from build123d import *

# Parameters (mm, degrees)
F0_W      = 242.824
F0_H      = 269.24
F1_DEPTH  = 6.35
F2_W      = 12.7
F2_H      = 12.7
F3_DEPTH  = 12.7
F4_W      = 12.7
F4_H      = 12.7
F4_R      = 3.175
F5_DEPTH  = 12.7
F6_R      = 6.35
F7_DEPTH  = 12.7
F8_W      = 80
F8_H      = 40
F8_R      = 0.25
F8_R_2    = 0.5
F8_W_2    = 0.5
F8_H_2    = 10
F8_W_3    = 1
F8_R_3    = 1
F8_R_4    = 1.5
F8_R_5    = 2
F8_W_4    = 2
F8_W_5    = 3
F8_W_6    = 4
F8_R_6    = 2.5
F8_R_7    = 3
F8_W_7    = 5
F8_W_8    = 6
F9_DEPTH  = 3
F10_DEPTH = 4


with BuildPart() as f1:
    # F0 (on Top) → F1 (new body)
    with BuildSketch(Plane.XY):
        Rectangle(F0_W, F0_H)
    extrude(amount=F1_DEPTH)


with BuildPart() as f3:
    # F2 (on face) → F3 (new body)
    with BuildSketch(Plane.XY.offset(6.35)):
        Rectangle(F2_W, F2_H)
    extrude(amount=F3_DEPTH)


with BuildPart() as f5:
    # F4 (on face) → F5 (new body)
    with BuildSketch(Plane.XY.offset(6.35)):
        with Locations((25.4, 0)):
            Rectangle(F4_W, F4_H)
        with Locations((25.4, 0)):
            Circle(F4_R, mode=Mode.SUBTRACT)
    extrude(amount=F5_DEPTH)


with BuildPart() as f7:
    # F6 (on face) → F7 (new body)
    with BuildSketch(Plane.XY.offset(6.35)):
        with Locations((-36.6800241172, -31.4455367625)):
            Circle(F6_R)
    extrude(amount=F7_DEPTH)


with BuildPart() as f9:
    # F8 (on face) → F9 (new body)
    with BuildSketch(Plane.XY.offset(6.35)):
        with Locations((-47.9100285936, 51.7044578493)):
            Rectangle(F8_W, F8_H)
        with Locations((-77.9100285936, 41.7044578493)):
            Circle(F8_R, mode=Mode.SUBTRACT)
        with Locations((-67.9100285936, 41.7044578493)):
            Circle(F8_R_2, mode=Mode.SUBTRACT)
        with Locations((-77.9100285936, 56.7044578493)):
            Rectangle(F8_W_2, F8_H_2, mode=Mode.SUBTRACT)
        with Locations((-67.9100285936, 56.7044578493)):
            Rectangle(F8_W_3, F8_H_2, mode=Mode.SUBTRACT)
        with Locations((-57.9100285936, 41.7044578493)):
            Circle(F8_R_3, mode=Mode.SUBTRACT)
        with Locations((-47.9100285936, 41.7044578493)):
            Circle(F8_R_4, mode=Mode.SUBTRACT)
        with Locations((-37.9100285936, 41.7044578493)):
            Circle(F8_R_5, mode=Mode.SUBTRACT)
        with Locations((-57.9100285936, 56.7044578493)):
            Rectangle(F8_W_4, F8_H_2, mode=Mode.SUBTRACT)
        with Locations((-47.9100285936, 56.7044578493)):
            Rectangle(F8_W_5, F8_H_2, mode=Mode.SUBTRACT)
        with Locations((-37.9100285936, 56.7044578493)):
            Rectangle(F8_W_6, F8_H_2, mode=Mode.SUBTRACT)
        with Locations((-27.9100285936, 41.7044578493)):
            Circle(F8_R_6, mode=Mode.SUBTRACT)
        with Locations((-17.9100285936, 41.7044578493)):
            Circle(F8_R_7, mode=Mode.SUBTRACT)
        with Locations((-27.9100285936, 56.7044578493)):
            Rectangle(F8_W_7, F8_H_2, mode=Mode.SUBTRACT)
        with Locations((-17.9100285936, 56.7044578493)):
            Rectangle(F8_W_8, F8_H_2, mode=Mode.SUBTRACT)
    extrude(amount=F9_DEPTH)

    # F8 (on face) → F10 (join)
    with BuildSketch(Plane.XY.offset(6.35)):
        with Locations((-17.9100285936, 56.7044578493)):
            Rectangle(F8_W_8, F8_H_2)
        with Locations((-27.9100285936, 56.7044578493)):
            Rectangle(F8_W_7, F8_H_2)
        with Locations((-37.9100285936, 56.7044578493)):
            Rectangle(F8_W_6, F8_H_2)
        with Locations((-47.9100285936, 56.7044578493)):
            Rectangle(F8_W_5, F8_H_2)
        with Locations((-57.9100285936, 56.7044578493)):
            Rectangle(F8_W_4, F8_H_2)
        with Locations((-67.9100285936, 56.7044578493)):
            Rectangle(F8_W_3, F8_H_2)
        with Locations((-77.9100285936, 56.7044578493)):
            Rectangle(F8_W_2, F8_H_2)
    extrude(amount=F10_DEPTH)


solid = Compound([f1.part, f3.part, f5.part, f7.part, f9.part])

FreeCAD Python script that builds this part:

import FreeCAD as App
import Part
import Sketcher

V = App.Vector

doc = App.newDocument("Part")
body = doc.addObject("PartDesign::Body", "Body")

sketch1 = doc.addObject("Sketcher::SketchObject", "Sketch")
body.addObject(sketch1)
sketch1.AttachmentSupport = (doc.XY_Plane, [""])
sketch1.MapMode = "FlatFace"
sketch1.addGeometry([
    Part.LineSegment(V(-121, 135, 0), V(-121, -135, 0)),
    Part.LineSegment(V(-121, -135, 0), V(121, -135, 0)),
    Part.LineSegment(V(121, -135, 0), V(121, 135, 0)),
    Part.LineSegment(V(121, 135, 0), V(-121, 135, 0)),
], False)
sketch1.addConstraint([
    Sketcher.Constraint("Coincident", 0, 2, 1, 1),
    Sketcher.Constraint("Coincident", 1, 2, 2, 1),
    Sketcher.Constraint("Coincident", 2, 2, 3, 1),
    Sketcher.Constraint("Coincident", 3, 2, 0, 1),
    Sketcher.Constraint("Vertical", 0),
    Sketcher.Constraint("Horizontal", 1),
    Sketcher.Constraint("Vertical", 2),
    Sketcher.Constraint("Horizontal", 3),
    Sketcher.Constraint("Symmetric", 0, 2, 2, 2, -1, 1),
    Sketcher.Constraint("DistanceY", 0, 2, 0, 1, 269.24),
    Sketcher.Constraint("DistanceX", 1, 1, 1, 2, 242.824),
])
pad1 = doc.addObject("PartDesign::Pad", "Pad")
body.addObject(pad1)
pad1.Profile = sketch1
pad1.Length = 6.35
body2 = doc.addObject("PartDesign::Body", "Body001")

sketch2 = doc.addObject("Sketcher::SketchObject", "Sketch001")
body2.addObject(sketch2)
sketch2.AttachmentSupport = (doc.getObject("XY_Plane001"), [""])
sketch2.MapMode = "FlatFace"
sketch2.AttachmentOffset = App.Placement(V(0, 0, 6.35), App.Rotation())
sketch2.addGeometry([
    Part.LineSegment(V(-6, 6, 0), V(-6, -6, 0)),
    Part.LineSegment(V(-6, -6, 0), V(6, -6, 0)),
    Part.LineSegment(V(6, -6, 0), V(6, 6, 0)),
    Part.LineSegment(V(6, 6, 0), V(-6, 6, 0)),
], False)
sketch2.addConstraint([
    Sketcher.Constraint("Coincident", 0, 2, 1, 1),
    Sketcher.Constraint("Coincident", 1, 2, 2, 1),
    Sketcher.Constraint("Coincident", 2, 2, 3, 1),
    Sketcher.Constraint("Coincident", 3, 2, 0, 1),
    Sketcher.Constraint("Vertical", 0),
    Sketcher.Constraint("Horizontal", 1),
    Sketcher.Constraint("Vertical", 2),
    Sketcher.Constraint("Horizontal", 3),
    Sketcher.Constraint("Symmetric", 0, 2, 2, 2, -1, 1),
    Sketcher.Constraint("Equal", 3, 0),
    Sketcher.Constraint("DistanceX", 1, 1, 1, 2, 12.7),
])
pad2 = doc.addObject("PartDesign::Pad", "Pad001")
body2.addObject(pad2)
pad2.Profile = sketch2
pad2.Length = 12.7
body3 = doc.addObject("PartDesign::Body", "Body002")

sketch3 = doc.addObject("Sketcher::SketchObject", "Sketch002")
body3.addObject(sketch3)
sketch3.AttachmentSupport = (doc.getObject("XY_Plane002"), [""])
sketch3.MapMode = "FlatFace"
sketch3.AttachmentOffset = App.Placement(V(0, 0, 6.35), App.Rotation())
sketch3.addGeometry([
    Part.LineSegment(V(19.1, 6.3, 0), V(19.1, -6.3, 0)),
    Part.LineSegment(V(19.1, -6.3, 0), V(31.8, -6.3, 0)),
    Part.LineSegment(V(31.8, -6.3, 0), V(31.8, 6.3, 0)),
    Part.LineSegment(V(31.8, 6.3, 0), V(19.1, 6.3, 0)),
    Part.Circle(V(25.4, 0, 0), V(0, 0, 1), 3.2),
], False)
sketch3.addConstraint([
    Sketcher.Constraint("Coincident", 0, 2, 1, 1),
    Sketcher.Constraint("Coincident", 1, 2, 2, 1),
    Sketcher.Constraint("Coincident", 2, 2, 3, 1),
    Sketcher.Constraint("Coincident", 3, 2, 0, 1),
    Sketcher.Constraint("Vertical", 0),
    Sketcher.Constraint("Horizontal", 1),
    Sketcher.Constraint("Vertical", 2),
    Sketcher.Constraint("Horizontal", 3),
    Sketcher.Constraint("PointOnObject", 4, 3, -1),
    Sketcher.Constraint("Equal", 3, 0),
    Sketcher.Constraint("Diameter", 4, 6.35),
    Sketcher.Constraint("DistanceX", 1, 1, 1, 2, 12.7),
    Sketcher.Constraint("DistanceX", -1, 1, 4, 3, 25.4),
    Sketcher.Constraint("DistanceX", -1, 1, 0, 2, 19.05),
    Sketcher.Constraint("DistanceY", 0, 2, -1, 1, 6.35),
])
pad3 = doc.addObject("PartDesign::Pad", "Pad002")
body3.addObject(pad3)
pad3.Profile = sketch3
pad3.Length = 12.7
body4 = doc.addObject("PartDesign::Body", "Body003")

sketch4 = doc.addObject("Sketcher::SketchObject", "Sketch003")
body4.addObject(sketch4)
sketch4.AttachmentSupport = (doc.getObject("XY_Plane003"), [""])
sketch4.MapMode = "FlatFace"
sketch4.AttachmentOffset = App.Placement(V(0, 0, 6.35), App.Rotation())
sketch4.addGeometry(Part.Circle(V(-37, -31, 0), V(0, 0, 1), 6), False)
sketch4.addConstraint([
    Sketcher.Constraint("Diameter", 0, 12.7),
    Sketcher.Constraint("DistanceX", 0, 3, -1, 1, 36.680024),
    Sketcher.Constraint("DistanceY", 0, 3, -1, 1, 31.445537),
])
pad4 = doc.addObject("PartDesign::Pad", "Pad003")
body4.addObject(pad4)
pad4.Profile = sketch4
pad4.Length = 12.7
body5 = doc.addObject("PartDesign::Body", "Body004")

sketch5 = doc.addObject("Sketcher::SketchObject", "Sketch004")
body5.addObject(sketch5)
sketch5.AttachmentSupport = (doc.getObject("XY_Plane004"), [""])
sketch5.MapMode = "FlatFace"
sketch5.AttachmentOffset = App.Placement(V(0, 0, 6.35), App.Rotation())
sketch5.addGeometry([
    Part.LineSegment(V(-87.91, 71.7, 0), V(-87.91, 31.7, 0)),
    Part.LineSegment(V(-87.91, 31.7, 0), V(-7.91, 31.7, 0)),
    Part.LineSegment(V(-7.91, 31.7, 0), V(-7.91, 71.7, 0)),
    Part.LineSegment(V(-7.91, 71.7, 0), V(-87.91, 71.7, 0)),
    Part.Circle(V(-77.91, 41.7, 0), V(0, 0, 1), 0.25),
    Part.Circle(V(-67.91, 41.7, 0), V(0, 0, 1), 0.5),
    Part.Circle(V(-57.91, 41.7, 0), V(0, 0, 1), 1),
    Part.Circle(V(-47.91, 41.7, 0), V(0, 0, 1), 1.5),
    Part.Circle(V(-37.91, 41.7, 0), V(0, 0, 1), 2),
    Part.Circle(V(-27.91, 41.7, 0), V(0, 0, 1), 2.5),
    Part.Circle(V(-17.91, 41.7, 0), V(0, 0, 1), 3),
    Part.LineSegment(V(-77.66, 51.7, 0), V(-78.16, 51.7, 0)),
    Part.LineSegment(V(-78.16, 51.7, 0), V(-78.16, 61.7, 0)),
    Part.LineSegment(V(-78.16, 61.7, 0), V(-77.66, 61.7, 0)),
    Part.LineSegment(V(-77.66, 61.7, 0), V(-77.66, 51.7, 0)),
    Part.LineSegment(V(-67.41, 51.7, 0), V(-68.41, 51.7, 0)),
    Part.LineSegment(V(-68.41, 51.7, 0), V(-68.41, 61.7, 0)),
    Part.LineSegment(V(-68.41, 61.7, 0), V(-67.41, 61.7, 0)),
    Part.LineSegment(V(-67.41, 61.7, 0), V(-67.41, 51.7, 0)),
    Part.LineSegment(V(-56.91, 51.7, 0), V(-58.91, 51.7, 0)),
    Part.LineSegment(V(-58.91, 51.7, 0), V(-58.91, 61.7, 0)),
    Part.LineSegment(V(-58.91, 61.7, 0), V(-56.91, 61.7, 0)),
    Part.LineSegment(V(-56.91, 61.7, 0), V(-56.91, 51.7, 0)),
    Part.LineSegment(V(-46.41, 51.7, 0), V(-49.41, 51.7, 0)),
    Part.LineSegment(V(-49.41, 51.7, 0), V(-49.41, 61.7, 0)),
    Part.LineSegment(V(-49.41, 61.7, 0), V(-46.41, 61.7, 0)),
    Part.LineSegment(V(-46.41, 61.7, 0), V(-46.41, 51.7, 0)),
    Part.LineSegment(V(-35.91, 51.7, 0), V(-39.91, 51.7, 0)),
    Part.LineSegment(V(-39.91, 51.7, 0), V(-39.91, 61.7, 0)),
    Part.LineSegment(V(-39.91, 61.7, 0), V(-35.91, 61.7, 0)),
    Part.LineSegment(V(-35.91, 61.7, 0), V(-35.91, 51.7, 0)),
    Part.LineSegment(V(-25.41, 51.7, 0), V(-30.41, 51.7, 0)),
    Part.LineSegment(V(-30.41, 51.7, 0), V(-30.41, 61.7, 0)),
    Part.LineSegment(V(-30.41, 61.7, 0), V(-25.41, 61.7, 0)),
    Part.LineSegment(V(-25.41, 61.7, 0), V(-25.41, 51.7, 0)),
    Part.LineSegment(V(-14.91, 51.7, 0), V(-20.91, 51.7, 0)),
    Part.LineSegment(V(-20.91, 51.7, 0), V(-20.91, 61.7, 0)),
    Part.LineSegment(V(-20.91, 61.7, 0), V(-14.91, 61.7, 0)),
    Part.LineSegment(V(-14.91, 61.7, 0), V(-14.91, 51.7, 0)),
], False)
sketch5.addConstraint([
    Sketcher.Constraint("Coincident", 0, 2, 1, 1),
    Sketcher.Constraint("Coincident", 1, 2, 2, 1),
    Sketcher.Constraint("Coincident", 2, 2, 3, 1),
    Sketcher.Constraint("Coincident", 3, 2, 0, 1),
    Sketcher.Constraint("Coincident", 11, 2, 12, 1),
    Sketcher.Constraint("Coincident", 12, 2, 13, 1),
    Sketcher.Constraint("Coincident", 13, 2, 14, 1),
    Sketcher.Constraint("Coincident", 14, 2, 11, 1),
    Sketcher.Constraint("Coincident", 15, 2, 16, 1),
    Sketcher.Constraint("Coincident", 16, 2, 17, 1),
    Sketcher.Constraint("Coincident", 17, 2, 18, 1),
    Sketcher.Constraint("Coincident", 18, 2, 15, 1),
    Sketcher.Constraint("Coincident", 19, 2, 20, 1),
    Sketcher.Constraint("Coincident", 20, 2, 21, 1),
    Sketcher.Constraint("Coincident", 21, 2, 22, 1),
    Sketcher.Constraint("Coincident", 22, 2, 19, 1),
    Sketcher.Constraint("Coincident", 23, 2, 24, 1),
    Sketcher.Constraint("Coincident", 24, 2, 25, 1),
    Sketcher.Constraint("Coincident", 25, 2, 26, 1),
    Sketcher.Constraint("Coincident", 26, 2, 23, 1),
    Sketcher.Constraint("Coincident", 27, 2, 28, 1),
    Sketcher.Constraint("Coincident", 28, 2, 29, 1),
    Sketcher.Constraint("Coincident", 29, 2, 30, 1),
    Sketcher.Constraint("Coincident", 30, 2, 27, 1),
    Sketcher.Constraint("Coincident", 31, 2, 32, 1),
    Sketcher.Constraint("Coincident", 32, 2, 33, 1),
    Sketcher.Constraint("Coincident", 33, 2, 34, 1),
    Sketcher.Constraint("Coincident", 34, 2, 31, 1),
    Sketcher.Constraint("Coincident", 35, 2, 36, 1),
    Sketcher.Constraint("Coincident", 36, 2, 37, 1),
    Sketcher.Constraint("Coincident", 37, 2, 38, 1),
    Sketcher.Constraint("Coincident", 38, 2, 35, 1),
    Sketcher.Constraint("Vertical", 0),
    Sketcher.Constraint("Horizontal", 1),
    Sketcher.Constraint("Vertical", 2),
    Sketcher.Constraint("Horizontal", 3),
    Sketcher.Constraint("Horizontal", 11),
    Sketcher.Constraint("Vertical", 12),
    Sketcher.Constraint("Horizontal", 13),
    Sketcher.Constraint("Vertical", 14),
    Sketcher.Constraint("Horizontal", 15),
    Sketcher.Constraint("Vertical", 16),
    Sketcher.Constraint("Horizontal", 17),
    Sketcher.Constraint("Vertical", 18),
    Sketcher.Constraint("Horizontal", 19),
    Sketcher.Constraint("Vertical", 20),
    Sketcher.Constraint("Horizontal", 21),
    Sketcher.Constraint("Vertical", 22),
    Sketcher.Constraint("Horizontal", 23),
    Sketcher.Constraint("Vertical", 24),
    Sketcher.Constraint("Horizontal", 25),
    Sketcher.Constraint("Vertical", 26),
    Sketcher.Constraint("Horizontal", 27),
    Sketcher.Constraint("Vertical", 28),
    Sketcher.Constraint("Horizontal", 29),
    Sketcher.Constraint("Vertical", 30),
    Sketcher.Constraint("Horizontal", 31),
    Sketcher.Constraint("Vertical", 32),
    Sketcher.Constraint("Horizontal", 33),
    Sketcher.Constraint("Vertical", 34),
    Sketcher.Constraint("Horizontal", 35),
    Sketcher.Constraint("Vertical", 36),
    Sketcher.Constraint("Horizontal", 37),
    Sketcher.Constraint("Vertical", 38),
    Sketcher.Constraint("Horizontal", 4, 3, 5, 3),
    Sketcher.Constraint("Horizontal", 5, 3, 6, 3),
    Sketcher.Constraint("Horizontal", 6, 3, 7, 3),
    Sketcher.Constraint("Horizontal", 7, 3, 8, 3),
    Sketcher.Constraint("Horizontal", 8, 3, 9, 3),
    Sketcher.Constraint("Horizontal", 9, 3, 10, 3),
    Sketcher.Constraint("Horizontal", 14, 2, 15, 2),
    Sketcher.Constraint("Horizontal", 13, 2, 16, 2),
    Sketcher.Constraint("Horizontal", 18, 2, 19, 2),
    Sketcher.Constraint("Horizontal", 17, 2, 20, 2),
    Sketcher.Constraint("Horizontal", 22, 2, 23, 2),
    Sketcher.Constraint("Horizontal", 21, 2, 24, 2),
    Sketcher.Constraint("Horizontal", 26, 2, 27, 2),
    Sketcher.Constraint("Horizontal", 25, 2, 28, 2),
    Sketcher.Constraint("Horizontal", 30, 2, 31, 2),
    Sketcher.Constraint("Horizontal", 29, 2, 32, 2),
    Sketcher.Constraint("Horizontal", 34, 2, 35, 2),
    Sketcher.Constraint("Horizontal", 33, 2, 36, 2),
    Sketcher.Constraint("Diameter", 5, 1.0),
    Sketcher.Constraint("Diameter", 6, 2.0),
    Sketcher.Constraint("Diameter", 7, 3.0),
    Sketcher.Constraint("Diameter", 8, 4.0),
    Sketcher.Constraint("Diameter", 9, 5.0),
    Sketcher.Constraint("Diameter", 10, 6.0),
    Sketcher.Constraint("Diameter", 4, 0.5),
    Sketcher.Constraint("DistanceX", 1, 1, 1, 2, 80.0),
    Sketcher.Constraint("DistanceX", 15, 2, 15, 1, 1.0),
    Sketcher.Constraint("DistanceX", 19, 2, 19, 1, 2.0),
    Sketcher.Constraint("DistanceX", 23, 2, 23, 1, 3.0),
    Sketcher.Constraint("DistanceX", 27, 2, 27, 1, 4.0),
    Sketcher.Constraint("DistanceX", 31, 2, 31, 1, 5.0),
    Sketcher.Constraint("DistanceX", 35, 2, 35, 1, 6.0),
    Sketcher.Constraint("DistanceY", 0, 2, 0, 1, 40.0),
    Sketcher.Constraint("DistanceY", 12, 1, 12, 2, 10.0),
    Sketcher.Constraint("DistanceX", 11, 2, 11, 1, 0.5),
    Sketcher.Constraint("DistanceX", 4, 3, 5, 3, 10.0),
    Sketcher.Constraint("DistanceX", 5, 3, 6, 3, 10.0),
    Sketcher.Constraint("DistanceX", 6, 3, 7, 3, 10.0),
    Sketcher.Constraint("DistanceX", 7, 3, 8, 3, 10.0),
    Sketcher.Constraint("DistanceX", 8, 3, 9, 3, 10.0),
    Sketcher.Constraint("DistanceX", 9, 3, 10, 3, 10.0),
    Sketcher.Constraint("DistanceX", 0, 2, 4, 3, 10.0),
    Sketcher.Constraint("DistanceY", 0, 2, 4, 3, 10.0),
    Sketcher.Constraint("DistanceY", 4, 3, 11, 2, 10.0),
    Sketcher.Constraint("DistanceX", 19, 2, 6, 3, 1.0),
    Sketcher.Constraint("DistanceX", 27, 2, 8, 3, 2.0),
    Sketcher.Constraint("DistanceX", 35, 2, 10, 3, 3.0),
    Sketcher.Constraint("DistanceX", 15, 2, 5, 3, 0.5),
    Sketcher.Constraint("DistanceX", 22, 2, 23, 2, 7.5),
    Sketcher.Constraint("DistanceX", 30, 2, 31, 2, 5.5),
    Sketcher.Constraint("DistanceX", 11, 2, 4, 3, 0.25),
    Sketcher.Constraint("DistanceX", 4, 3, -1, 1, 77.910029),
    Sketcher.Constraint("DistanceY", -1, 1, 4, 3, 41.704458),
])
pad5 = doc.addObject("PartDesign::Pad", "Pad004")
body5.addObject(pad5)
pad5.Profile = sketch5
pad5.Length = 3

sketch6 = doc.addObject("Sketcher::SketchObject", "Sketch005")
body5.addObject(sketch6)
sketch6.AttachmentSupport = (doc.getObject("XY_Plane004"), [""])
sketch6.MapMode = "FlatFace"
sketch6.AttachmentOffset = App.Placement(V(0, 0, 6.35), App.Rotation())
sketch6.addGeometry([
    Part.LineSegment(V(-20.9, 61.7, 0), V(-20.9, 51.7, 0)),
    Part.LineSegment(V(-20.9, 51.7, 0), V(-14.9, 51.7, 0)),
    Part.LineSegment(V(-14.9, 51.7, 0), V(-14.9, 61.7, 0)),
    Part.LineSegment(V(-14.9, 61.7, 0), V(-20.9, 61.7, 0)),
    Part.LineSegment(V(-30.4, 61.7, 0), V(-30.4, 51.7, 0)),
    Part.LineSegment(V(-30.4, 51.7, 0), V(-25.4, 51.7, 0)),
    Part.LineSegment(V(-25.4, 51.7, 0), V(-25.4, 61.7, 0)),
    Part.LineSegment(V(-25.4, 61.7, 0), V(-30.4, 61.7, 0)),
    Part.LineSegment(V(-39.9, 61.7, 0), V(-39.9, 51.7, 0)),
    Part.LineSegment(V(-39.9, 51.7, 0), V(-35.9, 51.7, 0)),
    Part.LineSegment(V(-35.9, 51.7, 0), V(-35.9, 61.7, 0)),
    Part.LineSegment(V(-35.9, 61.7, 0), V(-39.9, 61.7, 0)),
    Part.LineSegment(V(-49.4, 61.7, 0), V(-49.4, 51.7, 0)),
    Part.LineSegment(V(-49.4, 51.7, 0), V(-46.4, 51.7, 0)),
    Part.LineSegment(V(-46.4, 51.7, 0), V(-46.4, 61.7, 0)),
    Part.LineSegment(V(-46.4, 61.7, 0), V(-49.4, 61.7, 0)),
    Part.LineSegment(V(-58.9, 61.7, 0), V(-58.9, 51.7, 0)),
    Part.LineSegment(V(-58.9, 51.7, 0), V(-56.9, 51.7, 0)),
    Part.LineSegment(V(-56.9, 51.7, 0), V(-56.9, 61.7, 0)),
    Part.LineSegment(V(-56.9, 61.7, 0), V(-58.9, 61.7, 0)),
    Part.LineSegment(V(-68.4, 61.7, 0), V(-68.4, 51.7, 0)),
    Part.LineSegment(V(-68.4, 51.7, 0), V(-67.4, 51.7, 0)),
    Part.LineSegment(V(-67.4, 51.7, 0), V(-67.4, 61.7, 0)),
    Part.LineSegment(V(-67.4, 61.7, 0), V(-68.4, 61.7, 0)),
    Part.LineSegment(V(-78.2, 61.7, 0), V(-78.2, 51.7, 0)),
    Part.LineSegment(V(-78.2, 51.7, 0), V(-77.7, 51.7, 0)),
    Part.LineSegment(V(-77.7, 51.7, 0), V(-77.7, 61.7, 0)),
    Part.LineSegment(V(-77.7, 61.7, 0), V(-78.2, 61.7, 0)),
], False)
sketch6.addConstraint([
    Sketcher.Constraint("Coincident", 0, 2, 1, 1),
    Sketcher.Constraint("Coincident", 1, 2, 2, 1),
    Sketcher.Constraint("Coincident", 2, 2, 3, 1),
    Sketcher.Constraint("Coincident", 3, 2, 0, 1),
    Sketcher.Constraint("Coincident", 4, 2, 5, 1),
    Sketcher.Constraint("Coincident", 5, 2, 6, 1),
    Sketcher.Constraint("Coincident", 6, 2, 7, 1),
    Sketcher.Constraint("Coincident", 7, 2, 4, 1),
    Sketcher.Constraint("Coincident", 8, 2, 9, 1),
    Sketcher.Constraint("Coincident", 9, 2, 10, 1),
    Sketcher.Constraint("Coincident", 10, 2, 11, 1),
    Sketcher.Constraint("Coincident", 11, 2, 8, 1),
    Sketcher.Constraint("Coincident", 12, 2, 13, 1),
    Sketcher.Constraint("Coincident", 13, 2, 14, 1),
    Sketcher.Constraint("Coincident", 14, 2, 15, 1),
    Sketcher.Constraint("Coincident", 15, 2, 12, 1),
    Sketcher.Constraint("Coincident", 16, 2, 17, 1),
    Sketcher.Constraint("Coincident", 17, 2, 18, 1),
    Sketcher.Constraint("Coincident", 18, 2, 19, 1),
    Sketcher.Constraint("Coincident", 19, 2, 16, 1),
    Sketcher.Constraint("Coincident", 20, 2, 21, 1),
    Sketcher.Constraint("Coincident", 21, 2, 22, 1),
    Sketcher.Constraint("Coincident", 22, 2, 23, 1),
    Sketcher.Constraint("Coincident", 23, 2, 20, 1),
    Sketcher.Constraint("Coincident", 24, 2, 25, 1),
    Sketcher.Constraint("Coincident", 25, 2, 26, 1),
    Sketcher.Constraint("Coincident", 26, 2, 27, 1),
    Sketcher.Constraint("Coincident", 27, 2, 24, 1),
    Sketcher.Constraint("Vertical", 0),
    Sketcher.Constraint("Horizontal", 1),
    Sketcher.Constraint("Vertical", 2),
    Sketcher.Constraint("Horizontal", 3),
    Sketcher.Constraint("Vertical", 4),
    Sketcher.Constraint("Horizontal", 5),
    Sketcher.Constraint("Vertical", 6),
    Sketcher.Constraint("Horizontal", 7),
    Sketcher.Constraint("Vertical", 8),
    Sketcher.Constraint("Horizontal", 9),
    Sketcher.Constraint("Vertical", 10),
    Sketcher.Constraint("Horizontal", 11),
    Sketcher.Constraint("Vertical", 12),
    Sketcher.Constraint("Horizontal", 13),
    Sketcher.Constraint("Vertical", 14),
    Sketcher.Constraint("Horizontal", 15),
    Sketcher.Constraint("Vertical", 16),
    Sketcher.Constraint("Horizontal", 17),
    Sketcher.Constraint("Vertical", 18),
    Sketcher.Constraint("Horizontal", 19),
    Sketcher.Constraint("Vertical", 20),
    Sketcher.Constraint("Horizontal", 21),
    Sketcher.Constraint("Vertical", 22),
    Sketcher.Constraint("Horizontal", 23),
    Sketcher.Constraint("Vertical", 24),
    Sketcher.Constraint("Horizontal", 25),
    Sketcher.Constraint("Vertical", 26),
    Sketcher.Constraint("Horizontal", 27),
    Sketcher.Constraint("Horizontal", 1, 2, 4, 2),
    Sketcher.Constraint("Horizontal", 3, 2, 6, 2),
    Sketcher.Constraint("Horizontal", 5, 2, 8, 2),
    Sketcher.Constraint("Horizontal", 7, 2, 10, 2),
    Sketcher.Constraint("Horizontal", 9, 2, 12, 2),
    Sketcher.Constraint("Horizontal", 11, 2, 14, 2),
    Sketcher.Constraint("Horizontal", 13, 2, 16, 2),
    Sketcher.Constraint("Horizontal", 15, 2, 18, 2),
    Sketcher.Constraint("Horizontal", 17, 2, 20, 2),
    Sketcher.Constraint("Horizontal", 19, 2, 22, 2),
    Sketcher.Constraint("Horizontal", 21, 2, 24, 2),
    Sketcher.Constraint("Horizontal", 23, 2, 26, 2),
    Sketcher.Constraint("DistanceX", 1, 1, 1, 2, 6.0),
    Sketcher.Constraint("DistanceX", 5, 1, 5, 2, 5.0),
    Sketcher.Constraint("DistanceX", 9, 1, 9, 2, 4.0),
    Sketcher.Constraint("DistanceX", 13, 1, 13, 2, 3.0),
    Sketcher.Constraint("DistanceX", 17, 1, 17, 2, 2.0),
    Sketcher.Constraint("DistanceX", 21, 1, 21, 2, 1.0),
    Sketcher.Constraint("DistanceY", 0, 2, 0, 1, 10.0),
    Sketcher.Constraint("DistanceX", 25, 1, 25, 2, 0.5),
    Sketcher.Constraint("DistanceX", 8, 2, 0, 2, 19.0),
    Sketcher.Constraint("DistanceX", 12, 2, 4, 2, 19.0),
    Sketcher.Constraint("DistanceX", 16, 2, 8, 2, 19.0),
    Sketcher.Constraint("DistanceX", 20, 2, 12, 2, 19.0),
    Sketcher.Constraint("DistanceX", 4, 2, 0, 2, 9.5),
    Sketcher.Constraint("DistanceX", 24, 2, 20, 2, 9.75),
    Sketcher.Constraint("DistanceX", 0, 2, -1, 1, 20.910029),
    Sketcher.Constraint("DistanceY", -1, 1, 0, 2, 51.704458),
])
pad6 = doc.addObject("PartDesign::Pad", "Pad005")
body5.addObject(pad6)
pad6.Profile = sketch6
pad6.Length = 4

doc.recompute()
